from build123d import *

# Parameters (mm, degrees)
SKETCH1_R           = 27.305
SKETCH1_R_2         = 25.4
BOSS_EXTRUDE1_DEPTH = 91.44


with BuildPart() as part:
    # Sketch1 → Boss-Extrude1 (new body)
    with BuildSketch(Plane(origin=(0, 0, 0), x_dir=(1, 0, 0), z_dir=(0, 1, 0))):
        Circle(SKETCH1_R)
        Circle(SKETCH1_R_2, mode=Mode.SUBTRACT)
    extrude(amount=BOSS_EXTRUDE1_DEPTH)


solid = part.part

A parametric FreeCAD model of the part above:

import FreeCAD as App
import Part
import Sketcher
Q = App.Units.Quantity

doc = App.newDocument("Part")
body = doc.addObject("PartDesign::Body", "Body")

# Sketch on XZ plane
sketch1 = body.newObject("Sketcher::SketchObject", "Sketch")
sketch1.AttachmentSupport = (doc.getObject("XZ_Plane"), [""])
sketch1.MapMode = "FlatFace"
sketch1.addGeometry([
    Part.Circle(App.Vector(0, 0, 0), App.Vector(0, 0, 1), 27.305),
    Part.Circle(App.Vector(0, 0, 0), App.Vector(0, 0, 1), 25.4),
], False)
sketch1.addConstraint([
    Sketcher.Constraint("Coincident", 0, 3, -1, 1),
    Sketcher.Constraint("Coincident", 1, 3, -1, 1),
    Sketcher.Constraint("Diameter", 1, Q("2 in")),
    Sketcher.Constraint("Diameter", 0, Q("2.15 in")),
])
pad1 = body.newObject("PartDesign::Pad", "Pad")
pad1.Profile = sketch1
pad1.Length = Q("3.6 in")
pad1.Reversed = True

doc.recompute()
